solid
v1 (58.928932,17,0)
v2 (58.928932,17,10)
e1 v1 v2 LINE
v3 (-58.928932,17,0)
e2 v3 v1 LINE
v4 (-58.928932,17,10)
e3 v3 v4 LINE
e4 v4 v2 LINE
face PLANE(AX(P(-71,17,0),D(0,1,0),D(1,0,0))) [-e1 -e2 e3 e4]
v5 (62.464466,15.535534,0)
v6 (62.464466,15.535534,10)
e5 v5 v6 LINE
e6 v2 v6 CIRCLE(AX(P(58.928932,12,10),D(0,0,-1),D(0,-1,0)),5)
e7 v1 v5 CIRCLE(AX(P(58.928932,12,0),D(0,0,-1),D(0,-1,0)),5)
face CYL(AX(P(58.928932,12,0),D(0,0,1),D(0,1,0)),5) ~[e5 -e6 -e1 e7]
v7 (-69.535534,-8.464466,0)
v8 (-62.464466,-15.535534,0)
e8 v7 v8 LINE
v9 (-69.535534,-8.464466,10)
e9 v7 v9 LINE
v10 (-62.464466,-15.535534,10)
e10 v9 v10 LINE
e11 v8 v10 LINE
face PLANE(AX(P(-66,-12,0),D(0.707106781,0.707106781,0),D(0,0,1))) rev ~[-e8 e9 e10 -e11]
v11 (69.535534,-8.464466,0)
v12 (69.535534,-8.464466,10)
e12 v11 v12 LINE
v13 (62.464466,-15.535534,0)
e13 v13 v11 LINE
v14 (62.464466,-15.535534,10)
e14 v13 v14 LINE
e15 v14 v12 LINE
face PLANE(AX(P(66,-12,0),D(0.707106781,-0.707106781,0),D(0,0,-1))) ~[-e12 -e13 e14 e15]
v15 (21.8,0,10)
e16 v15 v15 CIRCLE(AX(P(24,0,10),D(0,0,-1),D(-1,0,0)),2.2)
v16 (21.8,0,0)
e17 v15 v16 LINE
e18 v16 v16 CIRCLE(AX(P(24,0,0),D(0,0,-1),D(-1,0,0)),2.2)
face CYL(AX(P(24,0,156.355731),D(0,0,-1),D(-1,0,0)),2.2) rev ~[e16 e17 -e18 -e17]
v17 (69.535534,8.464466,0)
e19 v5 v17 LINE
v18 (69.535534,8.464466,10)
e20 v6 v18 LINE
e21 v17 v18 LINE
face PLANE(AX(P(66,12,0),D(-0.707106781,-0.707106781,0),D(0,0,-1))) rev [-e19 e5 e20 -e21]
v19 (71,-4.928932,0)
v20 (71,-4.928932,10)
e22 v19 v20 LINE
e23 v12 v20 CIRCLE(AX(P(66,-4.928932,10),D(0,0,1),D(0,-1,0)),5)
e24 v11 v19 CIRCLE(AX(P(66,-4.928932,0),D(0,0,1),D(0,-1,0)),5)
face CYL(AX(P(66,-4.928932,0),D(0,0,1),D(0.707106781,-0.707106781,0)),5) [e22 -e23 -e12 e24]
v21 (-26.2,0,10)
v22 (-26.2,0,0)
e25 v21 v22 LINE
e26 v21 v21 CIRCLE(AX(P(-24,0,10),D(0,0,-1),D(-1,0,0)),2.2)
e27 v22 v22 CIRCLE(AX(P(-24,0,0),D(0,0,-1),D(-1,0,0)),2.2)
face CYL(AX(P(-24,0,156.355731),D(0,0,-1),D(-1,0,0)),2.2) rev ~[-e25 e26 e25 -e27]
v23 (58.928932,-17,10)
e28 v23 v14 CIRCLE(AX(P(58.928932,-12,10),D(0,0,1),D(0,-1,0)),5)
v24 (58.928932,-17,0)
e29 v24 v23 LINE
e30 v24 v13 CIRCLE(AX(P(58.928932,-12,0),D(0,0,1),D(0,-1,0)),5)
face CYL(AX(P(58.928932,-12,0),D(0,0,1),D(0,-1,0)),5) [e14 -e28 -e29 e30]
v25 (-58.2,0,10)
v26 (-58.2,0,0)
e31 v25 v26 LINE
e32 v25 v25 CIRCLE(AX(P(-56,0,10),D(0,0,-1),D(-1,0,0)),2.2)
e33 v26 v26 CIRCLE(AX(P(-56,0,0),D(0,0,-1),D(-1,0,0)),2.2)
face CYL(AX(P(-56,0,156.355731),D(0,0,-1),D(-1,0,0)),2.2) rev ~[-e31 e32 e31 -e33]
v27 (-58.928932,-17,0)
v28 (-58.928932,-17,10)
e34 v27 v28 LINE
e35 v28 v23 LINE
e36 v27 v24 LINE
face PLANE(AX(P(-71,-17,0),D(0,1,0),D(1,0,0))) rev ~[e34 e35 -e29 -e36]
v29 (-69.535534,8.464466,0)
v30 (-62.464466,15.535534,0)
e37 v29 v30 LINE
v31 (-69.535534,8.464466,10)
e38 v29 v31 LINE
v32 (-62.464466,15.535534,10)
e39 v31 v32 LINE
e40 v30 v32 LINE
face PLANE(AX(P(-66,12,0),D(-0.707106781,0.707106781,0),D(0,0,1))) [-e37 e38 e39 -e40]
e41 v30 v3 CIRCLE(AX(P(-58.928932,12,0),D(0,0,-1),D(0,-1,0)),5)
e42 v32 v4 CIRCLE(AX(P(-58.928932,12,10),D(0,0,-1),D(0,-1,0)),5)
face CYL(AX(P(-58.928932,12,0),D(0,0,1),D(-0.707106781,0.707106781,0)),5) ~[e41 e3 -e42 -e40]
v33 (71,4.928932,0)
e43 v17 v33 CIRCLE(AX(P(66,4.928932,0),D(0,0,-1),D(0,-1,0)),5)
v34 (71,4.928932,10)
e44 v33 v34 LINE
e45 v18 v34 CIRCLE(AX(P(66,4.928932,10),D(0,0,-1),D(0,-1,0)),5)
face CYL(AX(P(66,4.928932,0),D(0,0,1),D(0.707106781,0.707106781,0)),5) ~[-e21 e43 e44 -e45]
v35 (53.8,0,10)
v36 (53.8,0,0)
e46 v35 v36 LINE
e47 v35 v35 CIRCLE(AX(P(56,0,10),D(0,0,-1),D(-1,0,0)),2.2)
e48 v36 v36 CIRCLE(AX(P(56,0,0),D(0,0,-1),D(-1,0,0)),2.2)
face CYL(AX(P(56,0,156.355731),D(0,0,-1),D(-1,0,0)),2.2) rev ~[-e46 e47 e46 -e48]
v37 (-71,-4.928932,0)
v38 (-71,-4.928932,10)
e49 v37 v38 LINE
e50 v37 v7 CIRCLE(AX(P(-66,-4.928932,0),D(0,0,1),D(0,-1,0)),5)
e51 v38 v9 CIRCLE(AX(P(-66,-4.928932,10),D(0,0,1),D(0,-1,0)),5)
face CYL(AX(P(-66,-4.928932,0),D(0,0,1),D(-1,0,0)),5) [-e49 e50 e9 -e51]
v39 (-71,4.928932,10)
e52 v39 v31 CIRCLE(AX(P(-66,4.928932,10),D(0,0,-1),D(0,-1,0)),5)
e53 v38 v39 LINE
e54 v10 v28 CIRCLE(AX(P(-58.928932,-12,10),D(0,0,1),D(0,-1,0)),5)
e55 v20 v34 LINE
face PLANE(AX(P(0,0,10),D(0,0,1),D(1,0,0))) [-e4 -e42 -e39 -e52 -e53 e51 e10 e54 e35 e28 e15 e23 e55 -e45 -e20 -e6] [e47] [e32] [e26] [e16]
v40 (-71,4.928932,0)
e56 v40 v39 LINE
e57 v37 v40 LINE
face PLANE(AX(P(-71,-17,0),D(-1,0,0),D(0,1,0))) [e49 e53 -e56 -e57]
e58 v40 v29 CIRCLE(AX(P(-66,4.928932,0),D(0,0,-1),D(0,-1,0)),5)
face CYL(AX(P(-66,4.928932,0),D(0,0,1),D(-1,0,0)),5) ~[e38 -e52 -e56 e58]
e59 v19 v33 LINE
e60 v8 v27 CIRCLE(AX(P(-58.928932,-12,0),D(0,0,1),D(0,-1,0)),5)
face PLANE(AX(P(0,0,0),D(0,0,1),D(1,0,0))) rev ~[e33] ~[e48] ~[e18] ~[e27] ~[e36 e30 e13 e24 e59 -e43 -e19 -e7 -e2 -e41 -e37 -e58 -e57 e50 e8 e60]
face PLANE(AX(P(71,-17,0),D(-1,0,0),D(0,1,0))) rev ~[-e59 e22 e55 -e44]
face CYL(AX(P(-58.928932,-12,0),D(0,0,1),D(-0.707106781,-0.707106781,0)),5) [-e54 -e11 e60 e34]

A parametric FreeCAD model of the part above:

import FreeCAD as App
import Part
import Sketcher
from FreeCAD import Vector
Q = App.Units.Quantity


def edges_at(feature, points):
    """Names of the edges that pass closest to the given points."""
    edges = feature.Shape.Edges
    near = lambda p: min(range(len(edges)), key=lambda i: edges[i].distToShape(Part.Vertex(*p))[0])
    return sorted({f"Edge{near(p) + 1}" for p in points})


def add_polygon(sketch, points):
    """Adds a closed chain of lines whose ends are joined by coincident constraints."""
    first, n = sketch.GeometryCount, len(points)
    for a, b in zip(points, points[1:] + points[:1]):
        sketch.addGeometry(Part.LineSegment(App.Vector(*a, 0), App.Vector(*b, 0)), False)
    for i in range(n):
        sketch.addConstraint(Sketcher.Constraint("Coincident", first + i, 2, first + (i + 1) % n, 1))

doc = App.newDocument("Part")
body = doc.addObject("PartDesign::Body", "Body")

# Sketch on XY plane
sketch1 = doc.addObject("Sketcher::SketchObject", "Sketch")
body.addObject(sketch1)
sketch1.AttachmentSupport = (doc.XY_Plane, [""])
sketch1.MapMode = "FlatFace"
add_polygon(sketch1, [(-71, 17), (-71, -17), (71, -17), (71, 17)])  # lines 0-3
sketch1.addConstraint([
    Sketcher.Constraint("Vertical", 0),
    Sketcher.Constraint("Horizontal", 1),
    Sketcher.Constraint("Vertical", 2),
    Sketcher.Constraint("Horizontal", 3),
    Sketcher.Constraint("Symmetric", 0, 2, 2, 2, -1, 1),
    Sketcher.Constraint("DistanceX", 1, 1, 1, 2, Q("142 mm")),
    Sketcher.Constraint("DistanceY", 0, 2, 0, 1, Q("34 mm")),
])
pad1 = doc.addObject("PartDesign::Pad", "Pad")
body.addObject(pad1)
pad1.Profile = sketch1
pad1.Length = 10

# Sketch on XY plane
sketch2 = doc.addObject("Sketcher::SketchObject", "Sketch001")
body.addObject(sketch2)
sketch2.AttachmentSupport = (doc.XY_Plane, [""])
sketch2.MapMode = "FlatFace"
sketch2.AttachmentOffset = App.Placement(Vector(0, 0, 10), App.Rotation())
sketch2.addGeometry([
    Part.Circle(Vector(-56, 0, 0), Vector(0, 0, 1), 2.2),
    Part.Circle(Vector(-24, 0, 0), Vector(0, 0, 1), 2.2),
    Part.Circle(Vector(24, 0, 0), Vector(0, 0, 1), 2.2),
    Part.Circle(Vector(56, 0, 0), Vector(0, 0, 1), 2.2),
], False)
sketch2.addConstraint([
    Sketcher.Constraint("Equal", 0, 1),
    Sketcher.Constraint("Equal", 1, 2),
    Sketcher.Constraint("Equal", 2, 3),
    Sketcher.Constraint("Symmetric", 1, 3, 2, 3, -1, 1),
    Sketcher.Constraint("Symmetric", 0, 3, 3, 3, -1, 1),
    Sketcher.Constraint("PointOnObject", 0, 3, -1),
    Sketcher.Constraint("PointOnObject", 1, 3, -1),
    Sketcher.Constraint("Diameter", 0, Q("4.4 mm")),
    Sketcher.Constraint("DistanceX", 0, 3, -1, 1, Q("56 mm")),
    Sketcher.Constraint("DistanceX", 1, 3, -1, 1, Q("24 mm")),
])
doc.recompute()
hole = doc.addObject("PartDesign::Hole", "Hole")
body.addObject(hole)
hole.Profile = sketch2
hole.ThreadType = "None"
hole.Diameter = 4.4
hole.DepthType = "ThroughAll"
doc.recompute()

chamfer = doc.addObject("PartDesign::Chamfer", "Chamfer")
body.addObject(chamfer)
chamfer.Base = (hole, edges_at(hole, [
    (-71, -17, 5),
    (71, -17, 5),
    (71, 17, 5),
    (-71, 17, 5),
]))
chamfer.Size = 10
doc.recompute()

fillet = doc.addObject("PartDesign::Fillet", "Fillet")
body.addObject(fillet)
fillet.Base = (chamfer, edges_at(chamfer, [
    (-61, -17, 5),
    (-71, -7, 5),
    (61, -17, 5),
    (71, -7, 5),
    (71, 7, 5),
    (61, 17, 5),
    (-61, 17, 5),
    (-71, 7, 5),
]))
fillet.Radius = 5

doc.recompute()
